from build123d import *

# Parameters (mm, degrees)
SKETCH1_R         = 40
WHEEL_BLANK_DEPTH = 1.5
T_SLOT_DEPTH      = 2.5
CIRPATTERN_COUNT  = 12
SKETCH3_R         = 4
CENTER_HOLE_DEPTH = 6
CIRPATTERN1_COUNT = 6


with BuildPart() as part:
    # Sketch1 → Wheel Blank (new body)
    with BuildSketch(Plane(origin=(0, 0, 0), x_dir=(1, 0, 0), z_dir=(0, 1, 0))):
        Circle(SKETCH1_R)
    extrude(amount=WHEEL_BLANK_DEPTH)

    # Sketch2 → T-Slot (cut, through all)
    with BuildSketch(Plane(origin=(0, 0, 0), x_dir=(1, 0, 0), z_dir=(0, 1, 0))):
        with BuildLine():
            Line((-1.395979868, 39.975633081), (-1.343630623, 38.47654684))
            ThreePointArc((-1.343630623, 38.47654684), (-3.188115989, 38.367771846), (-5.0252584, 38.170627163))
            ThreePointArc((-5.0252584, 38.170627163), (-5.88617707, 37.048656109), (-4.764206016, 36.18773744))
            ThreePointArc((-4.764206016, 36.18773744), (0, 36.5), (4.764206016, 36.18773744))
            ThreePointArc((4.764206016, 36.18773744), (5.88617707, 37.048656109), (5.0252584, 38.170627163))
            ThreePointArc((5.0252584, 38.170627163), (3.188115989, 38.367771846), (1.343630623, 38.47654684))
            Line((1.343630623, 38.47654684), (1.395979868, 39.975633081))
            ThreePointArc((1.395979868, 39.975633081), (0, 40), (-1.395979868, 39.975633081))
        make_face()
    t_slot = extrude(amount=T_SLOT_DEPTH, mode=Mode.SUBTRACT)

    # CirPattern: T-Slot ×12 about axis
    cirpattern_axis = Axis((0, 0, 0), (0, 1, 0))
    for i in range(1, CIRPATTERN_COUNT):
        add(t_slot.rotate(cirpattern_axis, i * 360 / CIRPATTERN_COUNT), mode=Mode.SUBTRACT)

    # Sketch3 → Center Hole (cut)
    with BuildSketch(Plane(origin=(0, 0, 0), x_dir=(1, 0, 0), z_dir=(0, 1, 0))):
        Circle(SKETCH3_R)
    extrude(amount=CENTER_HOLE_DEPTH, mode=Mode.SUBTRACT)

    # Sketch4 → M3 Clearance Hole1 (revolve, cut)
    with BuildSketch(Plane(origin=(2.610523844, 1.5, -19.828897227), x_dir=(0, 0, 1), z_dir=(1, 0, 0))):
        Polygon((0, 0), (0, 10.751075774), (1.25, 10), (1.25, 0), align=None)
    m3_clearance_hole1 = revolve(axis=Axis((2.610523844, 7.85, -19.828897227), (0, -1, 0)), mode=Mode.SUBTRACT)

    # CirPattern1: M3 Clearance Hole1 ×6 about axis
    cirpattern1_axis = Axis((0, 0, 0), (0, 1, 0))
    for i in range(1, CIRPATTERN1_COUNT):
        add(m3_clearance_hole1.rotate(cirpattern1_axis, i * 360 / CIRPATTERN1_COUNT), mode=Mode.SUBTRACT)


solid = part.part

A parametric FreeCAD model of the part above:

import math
import FreeCAD as App
import Part
import Sketcher

V = App.Vector
Q = App.Units.Quantity

doc = App.newDocument("Part")
body = doc.addObject("PartDesign::Body", "Body")

# Sketch on XZ plane
sketch1 = doc.addObject("Sketcher::SketchObject", "Sketch")
body.addObject(sketch1)
sketch1.AttachmentSupport = (doc.XZ_Plane, [""])
sketch1.MapMode = "FlatFace"
sketch1.addGeometry(Part.Circle(V(0, 0, 0), V(0, 0, 1), 40), False)
sketch1.addConstraint(Sketcher.Constraint("Coincident", 0, 3, -1, 1))
sketch1.addConstraint(Sketcher.Constraint("Diameter", 0, Q("80 mm")))
pad1 = doc.addObject("PartDesign::Pad", "Pad")
body.addObject(pad1)
pad1.Profile = sketch1
pad1.Length = 1.5
pad1.Reversed = True

# Sketch on XZ plane
sketch2 = doc.addObject("Sketcher::SketchObject", "Sketch001")
body.addObject(sketch2)
sketch2.AttachmentSupport = (doc.XZ_Plane, [""])
sketch2.MapMode = "FlatFace"
sketch2.addGeometry(Part.LineSegment(V(-1.4, -40, 0), V(-1.3, -38.5, 0)), False)
sketch2.addGeometry(Part.ArcOfCircle(Part.Circle(V(0, 0, 0), V(0, 0, 1), 38.5), math.radians(-97.5), math.radians(-92)), False)
sketch2.addGeometry(Part.ArcOfCircle(Part.Circle(V(-4.9, -37.2, 0), V(0, 0, 1), 1), math.radians(82), math.radians(263)), False)
sketch2.addGeometry(Part.ArcOfCircle(Part.Circle(V(0, 0, 0), V(0, 0, 1), 36.5), math.radians(-97.5), math.radians(-82.5)), False)
sketch2.addGeometry(Part.ArcOfCircle(Part.Circle(V(4.9, -37.2, 0), V(0, 0, 1), 1), math.radians(-83), math.radians(98)), False)
sketch2.addGeometry(Part.ArcOfCircle(Part.Circle(V(0, 0, 0), V(0, 0, 1), 38.5), math.radians(-88), math.radians(-82.5)), False)
sketch2.addGeometry(Part.LineSegment(V(1.3, -38.5, 0), V(1.4, -40, 0)), False)
sketch2.addGeometry(Part.ArcOfCircle(Part.Circle(V(0, 0, 0), V(0, 0, 1), 40), math.radians(-92), math.radians(-88)), False)
sketch2.addConstraint(Sketcher.Constraint("Coincident", 0, 2, 1, 2))
sketch2.addConstraint(Sketcher.Constraint("Tangent", 1, 1, 2, 2))
sketch2.addConstraint(Sketcher.Constraint("Tangent", 2, 1, 3, 1))
sketch2.addConstraint(Sketcher.Constraint("Tangent", 3, 2, 4, 2))
sketch2.addConstraint(Sketcher.Constraint("Tangent", 4, 1, 5, 2))
sketch2.addConstraint(Sketcher.Constraint("Coincident", 5, 1, 6, 1))
sketch2.addConstraint(Sketcher.Constraint("Coincident", 6, 2, 7, 2))
sketch2.addConstraint(Sketcher.Constraint("Coincident", 7, 1, 0, 1))
sketch2.addConstraint(Sketcher.Constraint("Coincident", 1, 3, -1, 1))
sketch2.addConstraint(Sketcher.Constraint("Coincident", 3, 3, -1, 1))
sketch2.addConstraint(Sketcher.Constraint("Coincident", 5, 3, -1, 1))
sketch2.addConstraint(Sketcher.Constraint("Coincident", 7, 3, -1, 1))
sketch2.addConstraint(Sketcher.Constraint("Equal", 2, 4))
sketch2.addConstraint(Sketcher.Constraint("Horizontal", 2, 3, 4, 3))
sketch2.addConstraint(Sketcher.Constraint("Horizontal", 0, 2, 5, 1))
sketch2.addConstraint(Sketcher.Constraint("Horizontal", 6, 2, 7, 1))
sketch2.addConstraint(Sketcher.Constraint("Radius", 2, Q("1 mm")))
sketch2.addConstraint(Sketcher.Constraint("Radius", 7, Q("40 mm")))
sketch2.addConstraint(Sketcher.Constraint("Radius", 1, Q("38.5 mm")))
sketch2.addConstraint(Sketcher.Constraint("Angle", 0, Q("88 deg")))
sketch2.addConstraint(Sketcher.Constraint("DistanceX", 2, 3, 0, 2, Q("3.551102 mm")))
sketch2.addConstraint(Sketcher.Constraint("DistanceX", 0, 2, -1, 1, Q("1.343631 mm")))
pocket1 = doc.addObject("PartDesign::Pocket", "Pocket")
body.addObject(pocket1)
pocket1.Profile = sketch2
pocket1.Type = "ThroughAll"
doc.recompute()

polarpattern = doc.addObject("PartDesign::PolarPattern", "PolarPattern")
body.addObject(polarpattern)
polarpattern.Originals = [pocket1]
polarpattern.Axis = (doc.Y_Axis, [""])
polarpattern.Angle = 360
polarpattern.Occurrences = 12
body.Tip = polarpattern

# Sketch on XZ plane
sketch3 = doc.addObject("Sketcher::SketchObject", "Sketch002")
body.addObject(sketch3)
sketch3.AttachmentSupport = (doc.XZ_Plane, [""])
sketch3.MapMode = "FlatFace"
sketch3.addGeometry(Part.Circle(V(0, 0, 0), V(0, 0, 1), 4), False)
sketch3.addConstraint(Sketcher.Constraint("Coincident", 0, 3, -1, 1))
sketch3.addConstraint(Sketcher.Constraint("Diameter", 0, Q("8 mm")))
pocket2 = doc.addObject("PartDesign::Pocket", "Pocket001")
body.addObject(pocket2)
pocket2.Profile = sketch3
pocket2.Length = 6

# Sketch on YZ plane
sketch4 = doc.addObject("Sketcher::SketchObject", "Sketch003")
body.addObject(sketch4)
sketch4.AttachmentSupport = (doc.YZ_Plane, [""])
sketch4.MapMode = "FlatFace"
sketch4.AttachmentOffset = App.Placement(V(0, 0, 2.610524), App.Rotation())
sketch4.addGeometry(Part.LineSegment(V(-9.3, -19.8, 0), V(1.5, -19.8, 0)), False)
sketch4.addGeometry(Part.LineSegment(V(1.5, -19.8, 0), V(1.5, -18.6, 0)), False)
sketch4.addGeometry(Part.LineSegment(V(1.5, -18.6, 0), V(-8.5, -18.6, 0)), False)
sketch4.addGeometry(Part.LineSegment(V(-8.5, -18.6, 0), V(-9.3, -19.8, 0)), False)
sketch4.addGeometry(Part.LineSegment(V(1.5, -19.8, 0), V(-9.3, -19.8, 0)), True)  # axis
sketch4.addConstraint(Sketcher.Constraint("Coincident", 0, 2, 1, 1))
sketch4.addConstraint(Sketcher.Constraint("Coincident", 1, 2, 2, 1))
sketch4.addConstraint(Sketcher.Constraint("Coincident", 2, 2, 3, 1))
sketch4.addConstraint(Sketcher.Constraint("Coincident", 3, 2, 0, 1))
sketch4.addConstraint(Sketcher.Constraint("Horizontal", 0))
sketch4.addConstraint(Sketcher.Constraint("Vertical", 1))
sketch4.addConstraint(Sketcher.Constraint("Horizontal", 2))
sketch4.addConstraint(Sketcher.Constraint("Horizontal", 4))
sketch4.addConstraint(Sketcher.Constraint("Coincident", 4, 1, 0, 2))
sketch4.addConstraint(Sketcher.Constraint("Equal", 0, 4))
sketch4.addConstraint(Sketcher.Constraint("DistanceX", 2, 2, 2, 1, Q("10 mm")))
sketch4.addConstraint(Sketcher.Constraint("Angle", 3, Q("-121 deg")))
sketch4.addConstraint(Sketcher.Constraint("DistanceY", 1, 1, 1, 2, Q("1.25 mm")))
sketch4.addConstraint(Sketcher.Constraint("DistanceX", -1, 1, 0, 2, Q("1.5 mm")))
sketch4.addConstraint(Sketcher.Constraint("DistanceY", 0, 2, -1, 1, Q("19.828897 mm")))
groove = doc.addObject("PartDesign::Groove", "Groove")
body.addObject(groove)
groove.Profile = sketch4
groove.ReferenceAxis = (sketch4, ["Axis0"])
groove.Angle = 360
doc.recompute()

polarpattern2 = doc.addObject("PartDesign::PolarPattern", "PolarPattern001")
body.addObject(polarpattern2)
polarpattern2.Originals = [groove]
polarpattern2.Axis = (doc.Y_Axis, [""])
polarpattern2.Angle = 360
polarpattern2.Occurrences = 6
body.Tip = polarpattern2

doc.recompute()
